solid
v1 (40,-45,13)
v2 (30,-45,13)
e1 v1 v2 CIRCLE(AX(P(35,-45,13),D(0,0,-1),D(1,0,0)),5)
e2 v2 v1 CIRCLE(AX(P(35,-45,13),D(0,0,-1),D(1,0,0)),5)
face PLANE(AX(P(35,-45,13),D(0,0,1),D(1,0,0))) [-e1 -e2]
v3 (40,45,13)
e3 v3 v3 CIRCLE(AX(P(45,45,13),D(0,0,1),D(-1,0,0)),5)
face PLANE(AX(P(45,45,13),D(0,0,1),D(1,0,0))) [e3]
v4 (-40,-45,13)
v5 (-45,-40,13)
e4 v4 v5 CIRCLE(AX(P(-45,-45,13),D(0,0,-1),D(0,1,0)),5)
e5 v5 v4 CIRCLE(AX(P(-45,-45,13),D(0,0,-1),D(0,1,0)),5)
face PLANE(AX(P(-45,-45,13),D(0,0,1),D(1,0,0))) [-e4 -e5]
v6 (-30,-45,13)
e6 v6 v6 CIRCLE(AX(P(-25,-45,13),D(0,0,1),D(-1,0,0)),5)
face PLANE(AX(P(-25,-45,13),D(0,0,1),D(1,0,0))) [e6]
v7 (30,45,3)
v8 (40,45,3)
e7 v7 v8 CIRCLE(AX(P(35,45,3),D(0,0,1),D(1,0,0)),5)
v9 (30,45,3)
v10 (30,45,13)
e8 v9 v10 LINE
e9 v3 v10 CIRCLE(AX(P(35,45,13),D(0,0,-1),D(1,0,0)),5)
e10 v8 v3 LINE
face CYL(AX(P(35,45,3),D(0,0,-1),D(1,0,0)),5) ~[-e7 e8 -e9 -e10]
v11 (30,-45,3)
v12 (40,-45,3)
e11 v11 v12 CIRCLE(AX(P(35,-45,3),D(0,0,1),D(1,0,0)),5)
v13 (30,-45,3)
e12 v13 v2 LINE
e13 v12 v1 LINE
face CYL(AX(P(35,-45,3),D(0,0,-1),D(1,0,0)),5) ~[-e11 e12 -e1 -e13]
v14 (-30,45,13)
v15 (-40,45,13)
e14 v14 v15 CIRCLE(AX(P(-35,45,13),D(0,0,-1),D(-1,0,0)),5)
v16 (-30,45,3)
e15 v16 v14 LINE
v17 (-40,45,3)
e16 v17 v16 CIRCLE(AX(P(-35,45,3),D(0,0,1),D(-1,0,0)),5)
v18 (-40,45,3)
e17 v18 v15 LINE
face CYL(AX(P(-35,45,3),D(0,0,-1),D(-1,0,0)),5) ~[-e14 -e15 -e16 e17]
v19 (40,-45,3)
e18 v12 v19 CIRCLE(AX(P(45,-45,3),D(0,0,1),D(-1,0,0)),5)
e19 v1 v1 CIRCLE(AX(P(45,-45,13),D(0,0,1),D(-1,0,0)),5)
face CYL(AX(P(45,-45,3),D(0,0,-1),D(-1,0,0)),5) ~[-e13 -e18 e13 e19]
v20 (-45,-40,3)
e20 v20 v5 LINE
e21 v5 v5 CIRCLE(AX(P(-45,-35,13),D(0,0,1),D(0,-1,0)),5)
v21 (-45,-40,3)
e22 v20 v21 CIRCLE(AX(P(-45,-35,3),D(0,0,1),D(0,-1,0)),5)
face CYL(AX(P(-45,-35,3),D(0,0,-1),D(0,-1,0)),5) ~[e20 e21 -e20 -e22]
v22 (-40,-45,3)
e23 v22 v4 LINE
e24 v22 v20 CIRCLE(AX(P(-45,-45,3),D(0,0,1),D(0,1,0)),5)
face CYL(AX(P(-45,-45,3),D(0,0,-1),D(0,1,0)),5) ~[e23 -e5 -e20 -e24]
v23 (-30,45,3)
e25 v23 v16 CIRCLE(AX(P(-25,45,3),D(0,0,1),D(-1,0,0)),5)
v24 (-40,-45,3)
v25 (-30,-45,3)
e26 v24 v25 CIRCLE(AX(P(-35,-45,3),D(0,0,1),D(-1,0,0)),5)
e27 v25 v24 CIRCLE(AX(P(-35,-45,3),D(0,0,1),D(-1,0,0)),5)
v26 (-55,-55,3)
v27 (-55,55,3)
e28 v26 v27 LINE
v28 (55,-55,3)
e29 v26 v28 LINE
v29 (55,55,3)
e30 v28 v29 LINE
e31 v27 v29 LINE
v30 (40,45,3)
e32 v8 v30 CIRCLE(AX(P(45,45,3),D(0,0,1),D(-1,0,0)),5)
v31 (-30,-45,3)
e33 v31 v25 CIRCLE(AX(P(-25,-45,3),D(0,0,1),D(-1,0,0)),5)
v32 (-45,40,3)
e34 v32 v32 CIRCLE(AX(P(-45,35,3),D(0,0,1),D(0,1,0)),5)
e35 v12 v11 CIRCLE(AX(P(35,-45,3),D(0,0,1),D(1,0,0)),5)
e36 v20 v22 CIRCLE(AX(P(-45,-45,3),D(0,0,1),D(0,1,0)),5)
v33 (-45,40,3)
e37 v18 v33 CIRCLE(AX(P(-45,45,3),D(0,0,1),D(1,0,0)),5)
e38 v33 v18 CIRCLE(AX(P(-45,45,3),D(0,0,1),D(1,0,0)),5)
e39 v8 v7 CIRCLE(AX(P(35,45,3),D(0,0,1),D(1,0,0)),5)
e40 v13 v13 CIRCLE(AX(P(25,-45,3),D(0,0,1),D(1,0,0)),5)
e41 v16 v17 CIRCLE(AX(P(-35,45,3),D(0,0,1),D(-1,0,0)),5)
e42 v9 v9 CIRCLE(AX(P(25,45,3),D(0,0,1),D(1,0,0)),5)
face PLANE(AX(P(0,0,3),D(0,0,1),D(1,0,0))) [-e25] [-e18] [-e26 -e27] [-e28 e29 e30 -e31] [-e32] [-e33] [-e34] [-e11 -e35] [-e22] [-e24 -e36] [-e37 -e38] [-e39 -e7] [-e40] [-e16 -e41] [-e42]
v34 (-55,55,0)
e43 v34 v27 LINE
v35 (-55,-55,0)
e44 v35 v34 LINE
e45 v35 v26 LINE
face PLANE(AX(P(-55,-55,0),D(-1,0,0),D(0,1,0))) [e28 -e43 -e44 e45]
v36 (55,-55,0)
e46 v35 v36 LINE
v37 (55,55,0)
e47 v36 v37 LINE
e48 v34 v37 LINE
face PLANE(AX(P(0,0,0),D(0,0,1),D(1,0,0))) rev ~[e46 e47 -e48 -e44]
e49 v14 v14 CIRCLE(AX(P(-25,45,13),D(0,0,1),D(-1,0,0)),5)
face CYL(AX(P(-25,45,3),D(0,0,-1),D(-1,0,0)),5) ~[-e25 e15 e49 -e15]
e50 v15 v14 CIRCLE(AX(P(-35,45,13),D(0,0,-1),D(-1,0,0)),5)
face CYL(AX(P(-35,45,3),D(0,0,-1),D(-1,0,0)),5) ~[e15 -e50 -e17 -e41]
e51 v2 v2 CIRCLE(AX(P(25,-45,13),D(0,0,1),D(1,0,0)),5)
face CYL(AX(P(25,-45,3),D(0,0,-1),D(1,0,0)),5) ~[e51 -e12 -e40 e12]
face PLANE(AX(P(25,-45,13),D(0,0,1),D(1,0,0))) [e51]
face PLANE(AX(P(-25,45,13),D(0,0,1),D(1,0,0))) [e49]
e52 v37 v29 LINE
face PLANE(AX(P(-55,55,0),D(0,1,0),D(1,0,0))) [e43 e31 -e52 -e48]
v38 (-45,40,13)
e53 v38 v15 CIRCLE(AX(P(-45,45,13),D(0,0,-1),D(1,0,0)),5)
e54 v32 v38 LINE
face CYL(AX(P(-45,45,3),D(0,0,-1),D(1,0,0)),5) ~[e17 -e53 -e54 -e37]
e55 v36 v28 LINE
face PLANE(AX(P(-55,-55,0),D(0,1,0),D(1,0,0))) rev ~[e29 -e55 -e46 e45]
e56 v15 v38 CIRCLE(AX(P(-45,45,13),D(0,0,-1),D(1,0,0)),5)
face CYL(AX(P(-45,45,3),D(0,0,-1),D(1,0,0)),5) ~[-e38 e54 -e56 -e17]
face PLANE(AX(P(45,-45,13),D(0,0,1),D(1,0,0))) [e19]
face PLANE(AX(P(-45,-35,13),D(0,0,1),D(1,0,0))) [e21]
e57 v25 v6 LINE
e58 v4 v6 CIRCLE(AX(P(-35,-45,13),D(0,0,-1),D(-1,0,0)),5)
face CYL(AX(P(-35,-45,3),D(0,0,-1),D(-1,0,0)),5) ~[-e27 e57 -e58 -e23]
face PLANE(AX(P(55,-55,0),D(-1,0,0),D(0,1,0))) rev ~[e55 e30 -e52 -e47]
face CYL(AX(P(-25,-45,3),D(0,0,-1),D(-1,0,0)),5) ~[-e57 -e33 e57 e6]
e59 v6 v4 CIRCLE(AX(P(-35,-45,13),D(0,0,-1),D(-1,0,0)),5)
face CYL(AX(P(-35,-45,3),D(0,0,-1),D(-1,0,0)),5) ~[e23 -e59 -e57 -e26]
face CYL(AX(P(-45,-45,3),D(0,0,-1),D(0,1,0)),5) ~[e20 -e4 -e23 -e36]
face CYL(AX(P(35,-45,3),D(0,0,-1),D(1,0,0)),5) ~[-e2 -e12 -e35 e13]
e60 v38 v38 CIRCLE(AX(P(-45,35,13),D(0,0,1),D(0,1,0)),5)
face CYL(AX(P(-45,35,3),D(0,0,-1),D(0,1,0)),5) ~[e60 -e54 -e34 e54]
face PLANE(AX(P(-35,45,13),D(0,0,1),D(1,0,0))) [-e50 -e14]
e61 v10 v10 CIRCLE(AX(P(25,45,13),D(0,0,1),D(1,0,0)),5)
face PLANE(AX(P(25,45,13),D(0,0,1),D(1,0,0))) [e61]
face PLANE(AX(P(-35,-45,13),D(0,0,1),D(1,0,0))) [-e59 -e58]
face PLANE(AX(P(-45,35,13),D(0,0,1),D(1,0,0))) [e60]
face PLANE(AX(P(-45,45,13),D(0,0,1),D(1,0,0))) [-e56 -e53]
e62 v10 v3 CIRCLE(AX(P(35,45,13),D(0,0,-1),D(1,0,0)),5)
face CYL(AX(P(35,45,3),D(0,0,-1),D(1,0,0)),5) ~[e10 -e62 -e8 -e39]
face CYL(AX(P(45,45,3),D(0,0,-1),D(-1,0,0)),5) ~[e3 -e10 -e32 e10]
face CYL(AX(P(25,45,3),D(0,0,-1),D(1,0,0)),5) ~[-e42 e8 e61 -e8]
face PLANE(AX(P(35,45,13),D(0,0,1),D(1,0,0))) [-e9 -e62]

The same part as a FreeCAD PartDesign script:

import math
import FreeCAD as App
import Part
import Sketcher

V = App.Vector
Q = App.Units.Quantity


def add_polygon(sketch, points):
    """Adds a closed chain of lines whose ends are joined by coincident constraints."""
    first, n = sketch.GeometryCount, len(points)
    for a, b in zip(points, points[1:] + points[:1]):
        sketch.addGeometry(Part.LineSegment(App.Vector(*a, 0), App.Vector(*b, 0)), False)
    for i in range(n):
        sketch.addConstraint(Sketcher.Constraint("Coincident", first + i, 2, first + (i + 1) % n, 1))

doc = App.newDocument("Part")
body = doc.addObject("PartDesign::Body", "Body")

sketch1 = doc.addObject("Sketcher::SketchObject", "Sketch")
body.addObject(sketch1)
sketch1.AttachmentSupport = (doc.XY_Plane, [""])
sketch1.MapMode = "FlatFace"
add_polygon(sketch1, [(-55, 55), (-55, -55), (55, -55), (55, 55)])
sketch1.addConstraint([
    Sketcher.Constraint("Vertical", 0),
    Sketcher.Constraint("Horizontal", 1),
    Sketcher.Constraint("Vertical", 2),
    Sketcher.Constraint("Horizontal", 3),
    Sketcher.Constraint("Symmetric", 0, 2, 2, 2, -1, 1),
    Sketcher.Constraint("Equal", 3, 0),
    Sketcher.Constraint("DistanceX", 1, 1, 1, 2, Q("110 mm")),
])
pad1 = doc.addObject("PartDesign::Pad", "Pad")
body.addObject(pad1)
pad1.Profile = sketch1
pad1.Length = 3

sketch2 = doc.addObject("Sketcher::SketchObject", "Sketch001")
body.addObject(sketch2)
sketch2.AttachmentSupport = (doc.XY_Plane, [""])
sketch2.MapMode = "FlatFace"
sketch2.AttachmentOffset = App.Placement(V(0, 0, 3), App.Rotation())
sketch2.addGeometry([
    Part.ArcOfCircle(Part.Circle(V(-45, 45, 0), V(0, 0, 1), 5), math.radians(0), math.radians(270)),
    Part.ArcOfCircle(Part.Circle(V(-45, 45, 0), V(0, 0, 1), 5), math.radians(-90), math.radians(0)),
    Part.Circle(V(45, 45, 0), V(0, 0, 1), 5),
    Part.Circle(V(45, -45, 0), V(0, 0, 1), 5),
    Part.ArcOfCircle(Part.Circle(V(-45, -45, 0), V(0, 0, 1), 5), math.radians(90), math.radians(360)),
    Part.ArcOfCircle(Part.Circle(V(-45, -45, 0), V(0, 0, 1), 5), math.radians(0), math.radians(90)),
    Part.ArcOfCircle(Part.Circle(V(-35, 45, 0), V(0, 0, 1), 5), math.radians(180), math.radians(360)),
    Part.ArcOfCircle(Part.Circle(V(-35, 45, 0), V(0, 0, 1), 5), math.radians(0), math.radians(180)),
    Part.Circle(V(-25, 45, 0), V(0, 0, 1), 5),
    Part.Circle(V(-45, 35, 0), V(0, 0, 1), 5),
    Part.ArcOfCircle(Part.Circle(V(35, 45, 0), V(0, 0, 1), 5), math.radians(0), math.radians(180)),
    Part.ArcOfCircle(Part.Circle(V(35, 45, 0), V(0, 0, 1), 5), math.radians(180), math.radians(360)),
    Part.Circle(V(25, 45, 0), V(0, 0, 1), 5),
    Part.Circle(V(-45, -35, 0), V(0, 0, 1), 5),
    Part.ArcOfCircle(Part.Circle(V(-35, -45, 0), V(0, 0, 1), 5), math.radians(180), math.radians(360)),
    Part.ArcOfCircle(Part.Circle(V(-35, -45, 0), V(0, 0, 1), 5), math.radians(0), math.radians(180)),
    Part.Circle(V(-25, -45, 0), V(0, 0, 1), 5),
    Part.ArcOfCircle(Part.Circle(V(35, -45, 0), V(0, 0, 1), 5), math.radians(0), math.radians(180)),
    Part.ArcOfCircle(Part.Circle(V(35, -45, 0), V(0, 0, 1), 5), math.radians(180), math.radians(360)),
    Part.Circle(V(25, -45, 0), V(0, 0, 1), 5),
], False)
sketch2.addConstraint([
    Sketcher.Constraint("Tangent", 0, 1, 1, 2),
    Sketcher.Constraint("Coincident", 1, 1, 0, 2),
    Sketcher.Constraint("Tangent", 4, 1, 5, 2),
    Sketcher.Constraint("Coincident", 5, 1, 4, 2),
    Sketcher.Constraint("Tangent", 6, 1, 7, 2),
    Sketcher.Constraint("Coincident", 7, 1, 6, 2),
    Sketcher.Constraint("Tangent", 10, 1, 11, 2),
    Sketcher.Constraint("Coincident", 11, 1, 10, 2),
    Sketcher.Constraint("Tangent", 14, 1, 15, 2),
    Sketcher.Constraint("Coincident", 15, 1, 14, 2),
    Sketcher.Constraint("Tangent", 17, 1, 18, 2),
    Sketcher.Constraint("Coincident", 18, 1, 17, 2),
    Sketcher.Constraint("Coincident", 6, 1, 0, 1),
    Sketcher.Constraint("Coincident", 14, 1, 5, 1),
    Sketcher.Constraint("Equal", 1, 2),
    Sketcher.Constraint("Equal", 2, 3),
    Sketcher.Constraint("Equal", 3, 4),
    Sketcher.Constraint("Equal", 5, 6),
    Sketcher.Constraint("Equal", 7, 8),
    Sketcher.Constraint("Equal", 8, 9),
    Sketcher.Constraint("Equal", 9, 10),
    Sketcher.Constraint("Equal", 11, 12),
    Sketcher.Constraint("Equal", 12, 13),
    Sketcher.Constraint("Equal", 13, 14),
    Sketcher.Constraint("Equal", 15, 16),
    Sketcher.Constraint("Equal", 16, 17),
    Sketcher.Constraint("Equal", 18, 19),
    Sketcher.Constraint("Symmetric", 0, 3, 3, 3, -1, 1),
    Sketcher.Constraint("Symmetric", 2, 3, 4, 3, -1, 1),
    Sketcher.Constraint("Symmetric", 10, 3, 14, 3, -1, 1),
    Sketcher.Constraint("Symmetric", 12, 3, 16, 3, -1, 1),
    Sketcher.Constraint("Symmetric", 6, 3, 17, 3, -1, 1),
    Sketcher.Constraint("Symmetric", 8, 3, 19, 3, -1, 1),
    Sketcher.Constraint("Symmetric", 0, 3, 2, 3, -2),
    Sketcher.Constraint("Symmetric", 8, 3, 12, 3, -2),
    Sketcher.Constraint("Symmetric", 9, 3, 13, 3, -1),
    Sketcher.Constraint("Horizontal", 2, 3, 6, 3),
    Sketcher.Constraint("Horizontal", 7, 3, 8, 3),
    Sketcher.Constraint("Horizontal", 8, 3, 10, 3),
    Sketcher.Constraint("Horizontal", 12, 3, 0, 1),
    Sketcher.Constraint("Horizontal", 19, 3, 5, 1),
    Sketcher.Constraint("Horizontal", 6, 1, 7, 1),
    Sketcher.Constraint("Horizontal", 7, 1, 10, 1),
    Sketcher.Constraint("Horizontal", 10, 1, 11, 1),
    Sketcher.Constraint("Horizontal", 14, 1, 15, 1),
    Sketcher.Constraint("Horizontal", 15, 1, 17, 1),
    Sketcher.Constraint("Horizontal", 17, 1, 18, 1),
    Sketcher.Constraint("Vertical", 5, 3, 9, 3),
    Sketcher.Constraint("Vertical", 13, 3, 1, 1),
    Sketcher.Constraint("Vertical", 1, 1, 4, 1),
    Sketcher.Constraint("Diameter", 2, Q("10 mm")),
    Sketcher.Constraint("DistanceX", 0, 3, -1, 1, Q("45 mm")),
    Sketcher.Constraint("DistanceY", -1, 1, 0, 3, Q("45 mm")),
    Sketcher.Constraint("DistanceX", 8, 3, -1, 1, Q("25 mm")),
    Sketcher.Constraint("DistanceY", -1, 1, 9, 3, Q("35 mm")),
])
pad2 = doc.addObject("PartDesign::Pad", "Pad001")
body.addObject(pad2)
pad2.Profile = sketch2
pad2.Length = 10

doc.recompute()
